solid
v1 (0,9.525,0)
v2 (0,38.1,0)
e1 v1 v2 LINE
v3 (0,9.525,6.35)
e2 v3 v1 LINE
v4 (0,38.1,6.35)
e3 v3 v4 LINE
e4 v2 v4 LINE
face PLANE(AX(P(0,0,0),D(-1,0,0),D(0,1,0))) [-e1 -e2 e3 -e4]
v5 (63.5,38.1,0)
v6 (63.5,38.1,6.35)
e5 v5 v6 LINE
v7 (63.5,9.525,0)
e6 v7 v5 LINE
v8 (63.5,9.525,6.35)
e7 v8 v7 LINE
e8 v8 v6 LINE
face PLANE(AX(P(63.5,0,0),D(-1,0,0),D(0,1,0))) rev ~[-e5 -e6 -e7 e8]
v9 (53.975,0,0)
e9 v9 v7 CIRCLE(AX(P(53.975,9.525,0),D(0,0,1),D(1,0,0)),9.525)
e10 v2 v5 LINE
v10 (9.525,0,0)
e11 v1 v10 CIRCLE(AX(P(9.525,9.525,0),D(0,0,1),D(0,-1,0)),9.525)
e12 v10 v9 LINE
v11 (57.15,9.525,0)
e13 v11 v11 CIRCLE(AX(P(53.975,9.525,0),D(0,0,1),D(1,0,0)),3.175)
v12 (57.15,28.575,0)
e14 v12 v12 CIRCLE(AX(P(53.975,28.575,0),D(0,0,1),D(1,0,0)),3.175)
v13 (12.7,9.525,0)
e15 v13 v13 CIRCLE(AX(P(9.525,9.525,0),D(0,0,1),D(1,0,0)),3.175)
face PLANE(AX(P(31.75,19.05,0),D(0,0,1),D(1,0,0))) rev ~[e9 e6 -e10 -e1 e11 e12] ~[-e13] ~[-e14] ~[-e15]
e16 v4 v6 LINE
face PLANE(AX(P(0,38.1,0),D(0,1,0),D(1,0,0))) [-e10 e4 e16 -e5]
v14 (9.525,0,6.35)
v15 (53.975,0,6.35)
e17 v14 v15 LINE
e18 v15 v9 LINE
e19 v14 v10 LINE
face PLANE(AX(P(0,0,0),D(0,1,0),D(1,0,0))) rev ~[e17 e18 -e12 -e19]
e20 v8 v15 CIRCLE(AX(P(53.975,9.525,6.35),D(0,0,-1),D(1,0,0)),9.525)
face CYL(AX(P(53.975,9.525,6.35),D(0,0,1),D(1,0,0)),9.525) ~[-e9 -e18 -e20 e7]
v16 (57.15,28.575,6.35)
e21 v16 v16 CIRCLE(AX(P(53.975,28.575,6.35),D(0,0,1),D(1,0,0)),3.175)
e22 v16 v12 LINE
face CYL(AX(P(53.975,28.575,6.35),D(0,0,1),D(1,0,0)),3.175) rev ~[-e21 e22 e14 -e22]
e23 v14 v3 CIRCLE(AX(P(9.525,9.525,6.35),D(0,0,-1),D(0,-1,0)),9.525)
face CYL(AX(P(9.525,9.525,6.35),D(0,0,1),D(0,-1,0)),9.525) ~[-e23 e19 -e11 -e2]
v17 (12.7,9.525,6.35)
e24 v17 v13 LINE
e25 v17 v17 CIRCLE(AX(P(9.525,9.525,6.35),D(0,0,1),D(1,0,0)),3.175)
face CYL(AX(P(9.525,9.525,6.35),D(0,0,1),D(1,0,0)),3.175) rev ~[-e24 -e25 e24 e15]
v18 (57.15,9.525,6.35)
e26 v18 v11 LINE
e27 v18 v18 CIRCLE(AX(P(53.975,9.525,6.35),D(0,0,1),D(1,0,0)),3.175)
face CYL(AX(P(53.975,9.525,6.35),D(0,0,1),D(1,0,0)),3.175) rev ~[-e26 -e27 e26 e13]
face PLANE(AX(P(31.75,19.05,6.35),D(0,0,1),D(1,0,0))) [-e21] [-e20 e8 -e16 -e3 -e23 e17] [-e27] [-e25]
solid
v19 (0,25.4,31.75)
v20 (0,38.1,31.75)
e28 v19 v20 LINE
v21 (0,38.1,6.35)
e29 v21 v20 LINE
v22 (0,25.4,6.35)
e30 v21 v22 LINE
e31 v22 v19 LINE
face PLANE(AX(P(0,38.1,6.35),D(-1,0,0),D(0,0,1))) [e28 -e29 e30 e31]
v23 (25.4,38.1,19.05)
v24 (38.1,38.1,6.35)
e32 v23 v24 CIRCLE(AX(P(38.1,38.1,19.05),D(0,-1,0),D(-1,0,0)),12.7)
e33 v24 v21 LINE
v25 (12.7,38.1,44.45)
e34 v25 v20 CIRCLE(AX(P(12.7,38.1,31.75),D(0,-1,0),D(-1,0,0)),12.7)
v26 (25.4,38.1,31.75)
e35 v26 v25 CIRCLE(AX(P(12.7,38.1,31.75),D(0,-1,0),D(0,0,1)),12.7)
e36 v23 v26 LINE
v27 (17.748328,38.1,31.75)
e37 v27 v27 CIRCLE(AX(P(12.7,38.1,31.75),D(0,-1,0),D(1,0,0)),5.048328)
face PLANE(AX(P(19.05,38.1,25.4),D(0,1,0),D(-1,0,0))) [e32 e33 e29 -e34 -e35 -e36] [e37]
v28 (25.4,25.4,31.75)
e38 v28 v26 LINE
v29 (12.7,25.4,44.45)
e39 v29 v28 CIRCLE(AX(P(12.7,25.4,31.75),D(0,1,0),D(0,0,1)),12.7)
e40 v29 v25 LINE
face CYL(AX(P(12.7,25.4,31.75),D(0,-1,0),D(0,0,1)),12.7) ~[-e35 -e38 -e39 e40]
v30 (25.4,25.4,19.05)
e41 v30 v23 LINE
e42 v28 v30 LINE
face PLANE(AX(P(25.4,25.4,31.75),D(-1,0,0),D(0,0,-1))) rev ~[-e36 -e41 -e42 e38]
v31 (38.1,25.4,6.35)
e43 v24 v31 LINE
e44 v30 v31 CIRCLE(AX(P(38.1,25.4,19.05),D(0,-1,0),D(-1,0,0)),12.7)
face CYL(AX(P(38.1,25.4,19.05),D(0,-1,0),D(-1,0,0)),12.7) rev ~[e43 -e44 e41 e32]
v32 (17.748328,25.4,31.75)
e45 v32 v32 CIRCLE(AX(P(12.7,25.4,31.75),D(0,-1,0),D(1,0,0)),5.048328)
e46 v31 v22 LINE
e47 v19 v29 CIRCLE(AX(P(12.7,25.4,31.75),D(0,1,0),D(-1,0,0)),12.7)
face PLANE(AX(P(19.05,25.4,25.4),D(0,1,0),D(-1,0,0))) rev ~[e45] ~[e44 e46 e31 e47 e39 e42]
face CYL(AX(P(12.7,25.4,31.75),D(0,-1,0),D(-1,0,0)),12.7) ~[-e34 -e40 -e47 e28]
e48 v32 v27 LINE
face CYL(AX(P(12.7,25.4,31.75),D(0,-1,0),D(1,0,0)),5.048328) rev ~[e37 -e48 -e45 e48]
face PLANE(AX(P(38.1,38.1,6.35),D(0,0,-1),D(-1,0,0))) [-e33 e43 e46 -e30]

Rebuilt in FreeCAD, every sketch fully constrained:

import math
import FreeCAD as App
import Part
import Sketcher
from FreeCAD import Vector
Q = App.Units.Quantity


def add_polygon(sketch, points):
    """Adds a closed chain of lines whose ends are joined by coincident constraints."""
    first, n = sketch.GeometryCount, len(points)
    for a, b in zip(points, points[1:] + points[:1]):
        sketch.addGeometry(Part.LineSegment(App.Vector(*a, 0), App.Vector(*b, 0)), False)
    for i in range(n):
        sketch.addConstraint(Sketcher.Constraint("Coincident", first + i, 2, first + (i + 1) % n, 1))

doc = App.newDocument("Part")
params = doc.addObject("Spreadsheet::Sheet", "Params")
for row, (alias, value) in enumerate([
    ("sketch1_width", "2.5 in"),
    ("sketch1_height", "1.5 in"),
    ("pad1_length", "0.25 in"),
    ("sketch2_diameter", "0.25 in"),
    ("sketch2_radius", "0.375 in"),
    ("pocket1_length", "1 in"),
    ("sketch3_width", "1.5 in"),
    ("pad2_length", "0.5 in"),
    ("sketch4_radius", "0.5 in"),
    ("sketch4_width", "1 in"),
    ("pocket2_length", "1 in"),
], start=1):
    params.set(f"A{row}", alias)
    params.set(f"B{row}", "=" + value)
    params.setAlias(f"B{row}", alias)

body = doc.addObject("PartDesign::Body", "Body")

sketch1 = body.newObject("Sketcher::SketchObject", "Sketch")
sketch1.AttachmentSupport = (doc.getObject("XY_Plane"), [""])
sketch1.MapMode = "FlatFace"
add_polygon(sketch1, [(0, 38), (0, 0), (64, 0), (64, 38)])
sketch1.addConstraint([
    Sketcher.Constraint("Vertical", 0),
    Sketcher.Constraint("Horizontal", 1),
    Sketcher.Constraint("Vertical", 2),
    Sketcher.Constraint("Horizontal", 3),
    Sketcher.Constraint("Coincident", 0, 2, -1, 1),
    Sketcher.Constraint("DistanceX", 1, 1, 1, 2, Q("2.5 in")),
    Sketcher.Constraint("DistanceY", 0, 2, 0, 1, Q("1.5 in")),
])
sketch1.setExpression("Constraints[9]", "Params.sketch1_width")
sketch1.setExpression("Constraints[10]", "Params.sketch1_height")
pad1 = body.newObject("PartDesign::Pad", "Pad")
pad1.Profile = sketch1
pad1.setExpression("Length", "Params.pad1_length")

sketch2 = body.newObject("Sketcher::SketchObject", "Sketch001")
sketch2.AttachmentSupport = (doc.getObject("XY_Plane"), [""])
sketch2.MapMode = "FlatFace"
sketch2.AttachmentOffset = App.Placement(Vector(0, 0, 0.25 * 25.4), App.Rotation())
sketch2.addGeometry([
    Part.Circle(Vector(54, 28.6, 0), Vector(0, 0, 1), 3.2),
    Part.Circle(Vector(54, 9.5, 0), Vector(0, 0, 1), 3.2),
    Part.Circle(Vector(9.5, 9.5, 0), Vector(0, 0, 1), 3.2),
    Part.ArcOfCircle(Part.Circle(Vector(9.5, 9.5, 0), Vector(0, 0, 1), 9.5), math.radians(180), math.radians(270)),
    Part.LineSegment(Vector(0, 9.5, 0), Vector(0, 0, 0)),
    Part.LineSegment(Vector(0, 0, 0), Vector(9.5, 0, 0)),
    Part.ArcOfCircle(Part.Circle(Vector(54, 9.5, 0), Vector(0, 0, 1), 9.5), math.radians(-90), math.radians(0)),
    Part.LineSegment(Vector(54, 0, 0), Vector(63.5, 0, 0)),
    Part.LineSegment(Vector(63.5, 0, 0), Vector(63.5, 9.5, 0)),
], False)
sketch2.addConstraint([
    Sketcher.Constraint("Tangent", 3, 1, 4, 1),
    Sketcher.Constraint("Coincident", 4, 2, 5, 1),
    Sketcher.Constraint("Tangent", 5, 2, 3, 2),
    Sketcher.Constraint("Tangent", 6, 1, 7, 1),
    Sketcher.Constraint("Coincident", 7, 2, 8, 1),
    Sketcher.Constraint("Tangent", 8, 2, 6, 2),
    Sketcher.Constraint("Vertical", 4),
    Sketcher.Constraint("Horizontal", 5),
    Sketcher.Constraint("Horizontal", 7),
    Sketcher.Constraint("Vertical", 8),
    Sketcher.Constraint("Coincident", 4, 2, -1, 1),
    Sketcher.Constraint("Coincident", 3, 3, 2, 3),
    Sketcher.Constraint("Coincident", 6, 3, 1, 3),
    Sketcher.Constraint("Equal", 0, 1),
    Sketcher.Constraint("Equal", 1, 2),
    Sketcher.Constraint("Equal", 3, 6),
    Sketcher.Constraint("PointOnObject", 6, 1, -1),
    Sketcher.Constraint("Vertical", 0, 3, 1, 3),
    Sketcher.Constraint("Diameter", 0, Q("0.25 in")),
    Sketcher.Constraint("Radius", 3, Q("0.375 in")),
    Sketcher.Constraint("DistanceX", -1, 1, 7, 2, Q("2.5 in")),
    Sketcher.Constraint("DistanceY", 1, 3, 0, 3, Q("0.75 in")),
])
sketch2.setExpression("Constraints[18]", "Params.sketch2_diameter")
sketch2.setExpression("Constraints[19]", "Params.sketch2_radius")
pocket1 = body.newObject("PartDesign::Pocket", "Pocket")
pocket1.Profile = sketch2
pocket1.setExpression("Length", "Params.pocket1_length")
body2 = doc.addObject("PartDesign::Body", "Body001")

sketch3 = body2.newObject("Sketcher::SketchObject", "Sketch002")
sketch3.AttachmentSupport = (doc.getObject("XZ_Plane001"), [""])
sketch3.MapMode = "FlatFace"
sketch3.AttachmentOffset = App.Placement(Vector(0, 0, -1.5 * 25.4), App.Rotation())
add_polygon(sketch3, [(38, 44), (38, 6), (0, 6), (0, 44)])
sketch3.addConstraint([
    Sketcher.Constraint("Vertical", 0),
    Sketcher.Constraint("Horizontal", 1),
    Sketcher.Constraint("Vertical", 2),
    Sketcher.Constraint("Horizontal", 3),
    Sketcher.Constraint("PointOnObject", 1, 2, -2),
    Sketcher.Constraint("Equal", 3, 0),
    Sketcher.Constraint("DistanceX", 1, 2, 1, 1, Q("1.5 in")),
    Sketcher.Constraint("DistanceY", -1, 1, 0, 2, Q("0.25 in")),
])
sketch3.setExpression("Constraints[10]", "Params.sketch3_width")
pad2 = body2.newObject("PartDesign::Pad", "Pad001")
pad2.Profile = sketch3
pad2.setExpression("Length", "Params.pad2_length")

sketch4 = body2.newObject("Sketcher::SketchObject", "Sketch003")
sketch4.AttachmentSupport = (doc.getObject("XZ_Plane001"), [""])
sketch4.MapMode = "FlatFace"
sketch4.AttachmentOffset = App.Placement(Vector(0, 0, -1 * 25.4), App.Rotation())
sketch4.addGeometry([
    Part.LineSegment(Vector(38, 44, 0), Vector(13, 44, 0)),
    Part.ArcOfCircle(Part.Circle(Vector(13, 32, 0), Vector(0, 0, 1), 13), math.radians(0), math.radians(90)),
    Part.LineSegment(Vector(25, 32, 0), Vector(25, 19, 0)),
    Part.ArcOfCircle(Part.Circle(Vector(38, 19, 0), Vector(0, 0, 1), 13), math.radians(180), math.radians(270)),
    Part.LineSegment(Vector(38, 6, 0), Vector(38, 44, 0)),
    Part.ArcOfCircle(Part.Circle(Vector(13, 32, 0), Vector(0, 0, 1), 13), math.radians(90), math.radians(180)),
    Part.LineSegment(Vector(13, 44, 0), Vector(0, 44, 0)),
    Part.LineSegment(Vector(0, 44, 0), Vector(0, 32, 0)),
    Part.Circle(Vector(13, 32, 0), Vector(0, 0, 1), 5),
], False)
sketch4.addConstraint([
    Sketcher.Constraint("Tangent", 0, 2, 1, 2),
    Sketcher.Constraint("Tangent", 1, 1, 2, 1),
    Sketcher.Constraint("Tangent", 2, 2, 3, 1),
    Sketcher.Constraint("Coincident", 3, 2, 4, 1),
    Sketcher.Constraint("Coincident", 4, 2, 0, 1),
    Sketcher.Constraint("Tangent", 5, 1, 6, 1),
    Sketcher.Constraint("Coincident", 6, 2, 7, 1),
    Sketcher.Constraint("Tangent", 7, 2, 5, 2),
    Sketcher.Constraint("Horizontal", 0),
    Sketcher.Constraint("Vertical", 2),
    Sketcher.Constraint("Vertical", 4),
    Sketcher.Constraint("Horizontal", 6),
    Sketcher.Constraint("Vertical", 7),
    Sketcher.Constraint("Coincident", 5, 3, 1, 3),
    Sketcher.Constraint("Coincident", 8, 3, 1, 3),
    Sketcher.Constraint("Equal", 1, 3),
    Sketcher.Constraint("Equal", 3, 5),
    Sketcher.Constraint("PointOnObject", 6, 2, -2),
    Sketcher.Constraint("Equal", 6, 2),
    Sketcher.Constraint("Radius", 1, Q("0.5 in")),
    Sketcher.Constraint("DistanceX", 0, 2, 0, 1, Q("1 in")),
    Sketcher.Constraint("DistanceY", -1, 1, 1, 3, Q("1.25 in")),
    Sketcher.Constraint("Diameter", 8, 10.096656),
])
sketch4.setExpression("Constraints[19]", "Params.sketch4_radius")
sketch4.setExpression("Constraints[20]", "Params.sketch4_width")
pocket2 = body2.newObject("PartDesign::Pocket", "Pocket001")
pocket2.Profile = sketch4
pocket2.setExpression("Length", "Params.pocket2_length")

doc.recompute()
